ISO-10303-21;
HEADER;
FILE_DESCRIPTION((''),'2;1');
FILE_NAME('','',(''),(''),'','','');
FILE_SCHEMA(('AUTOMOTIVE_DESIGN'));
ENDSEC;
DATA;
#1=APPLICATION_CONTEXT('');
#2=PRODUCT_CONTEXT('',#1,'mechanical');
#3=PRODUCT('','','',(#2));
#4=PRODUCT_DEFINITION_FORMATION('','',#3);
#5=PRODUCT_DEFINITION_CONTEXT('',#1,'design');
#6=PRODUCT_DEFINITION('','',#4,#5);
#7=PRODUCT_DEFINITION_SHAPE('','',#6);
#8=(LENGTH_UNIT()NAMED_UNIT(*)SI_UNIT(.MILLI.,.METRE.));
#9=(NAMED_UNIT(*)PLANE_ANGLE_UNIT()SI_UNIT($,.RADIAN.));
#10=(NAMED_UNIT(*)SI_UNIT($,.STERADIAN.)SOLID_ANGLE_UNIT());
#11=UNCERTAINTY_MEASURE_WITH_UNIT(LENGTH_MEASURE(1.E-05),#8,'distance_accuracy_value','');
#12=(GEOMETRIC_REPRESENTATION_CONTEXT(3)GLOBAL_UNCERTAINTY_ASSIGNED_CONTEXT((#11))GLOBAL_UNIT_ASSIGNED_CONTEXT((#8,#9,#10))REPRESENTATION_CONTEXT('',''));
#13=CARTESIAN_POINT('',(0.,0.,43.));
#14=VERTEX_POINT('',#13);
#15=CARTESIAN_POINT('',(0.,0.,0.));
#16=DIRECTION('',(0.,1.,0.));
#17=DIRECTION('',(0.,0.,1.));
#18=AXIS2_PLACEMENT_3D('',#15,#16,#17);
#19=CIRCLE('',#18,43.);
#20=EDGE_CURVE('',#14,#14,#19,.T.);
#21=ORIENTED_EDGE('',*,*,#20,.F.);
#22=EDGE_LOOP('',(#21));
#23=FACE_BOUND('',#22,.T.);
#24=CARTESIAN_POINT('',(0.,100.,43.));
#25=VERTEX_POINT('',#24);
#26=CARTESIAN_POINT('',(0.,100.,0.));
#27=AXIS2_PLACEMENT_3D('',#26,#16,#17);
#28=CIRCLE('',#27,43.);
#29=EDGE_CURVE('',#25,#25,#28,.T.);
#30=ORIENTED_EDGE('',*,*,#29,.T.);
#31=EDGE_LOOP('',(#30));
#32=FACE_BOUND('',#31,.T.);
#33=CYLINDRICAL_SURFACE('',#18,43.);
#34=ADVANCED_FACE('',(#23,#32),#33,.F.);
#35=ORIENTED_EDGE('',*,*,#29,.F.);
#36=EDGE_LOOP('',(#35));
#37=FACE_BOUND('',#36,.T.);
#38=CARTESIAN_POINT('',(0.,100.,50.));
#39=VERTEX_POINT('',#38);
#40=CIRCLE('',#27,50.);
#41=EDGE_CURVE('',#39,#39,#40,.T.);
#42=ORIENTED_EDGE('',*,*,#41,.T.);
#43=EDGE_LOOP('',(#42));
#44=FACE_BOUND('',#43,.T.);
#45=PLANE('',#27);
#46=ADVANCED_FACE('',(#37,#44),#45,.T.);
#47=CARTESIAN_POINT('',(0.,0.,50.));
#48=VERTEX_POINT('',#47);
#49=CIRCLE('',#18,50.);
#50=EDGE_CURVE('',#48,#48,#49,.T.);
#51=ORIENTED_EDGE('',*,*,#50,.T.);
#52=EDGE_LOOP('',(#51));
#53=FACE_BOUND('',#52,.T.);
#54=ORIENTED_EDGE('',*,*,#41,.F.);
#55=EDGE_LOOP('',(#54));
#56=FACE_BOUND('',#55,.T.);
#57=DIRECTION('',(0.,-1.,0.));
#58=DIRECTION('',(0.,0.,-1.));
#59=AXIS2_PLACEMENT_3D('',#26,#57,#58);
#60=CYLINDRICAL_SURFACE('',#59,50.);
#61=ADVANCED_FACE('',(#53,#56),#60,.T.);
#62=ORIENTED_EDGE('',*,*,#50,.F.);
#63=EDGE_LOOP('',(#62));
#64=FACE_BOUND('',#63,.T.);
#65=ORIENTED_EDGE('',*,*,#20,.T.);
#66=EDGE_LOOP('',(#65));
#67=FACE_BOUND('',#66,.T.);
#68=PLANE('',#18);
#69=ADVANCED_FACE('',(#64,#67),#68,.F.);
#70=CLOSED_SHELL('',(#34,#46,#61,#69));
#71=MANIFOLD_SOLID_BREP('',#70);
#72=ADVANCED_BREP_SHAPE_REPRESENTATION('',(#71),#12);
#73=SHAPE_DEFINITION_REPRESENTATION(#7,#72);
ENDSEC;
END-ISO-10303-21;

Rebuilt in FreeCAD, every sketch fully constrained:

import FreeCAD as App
import Part
import Sketcher
from FreeCAD import Vector

doc = App.newDocument("Part")
body = doc.addObject("PartDesign::Body", "Body")

sketch1 = body.newObject("Sketcher::SketchObject", "Sketch")
sketch1.AttachmentSupport = (doc.getObject("XZ_Plane"), [""])
sketch1.MapMode = "FlatFace"
sketch1.addGeometry(Part.Circle(Vector(0, 0, 0), Vector(0, 0, 1), 50), False)
sketch1.addConstraint([
    Sketcher.Constraint("Coincident", 0, 3, -1, 1),
    Sketcher.Constraint("Diameter", 0, 100.0),
])
pad1 = body.newObject("PartDesign::Pad", "Pad")
pad1.Profile = sketch1
pad1.Length = 100
pad1.Reversed = True

sketch2 = body.newObject("Sketcher::SketchObject", "Sketch001")
sketch2.AttachmentSupport = (doc.getObject("XZ_Plane"), [""])
sketch2.MapMode = "FlatFace"
sketch2.AttachmentOffset = App.Placement(Vector(0, 0, -100), App.Rotation())
sketch2.addGeometry(Part.Circle(Vector(0, 0, 0), Vector(0, 0, 1), 43), False)
sketch2.addConstraint([
    Sketcher.Constraint("Coincident", 0, 3, -1, 1),
    Sketcher.Constraint("Diameter", 0, 86.0),
])
pocket1 = body.newObject("PartDesign::Pocket", "Pocket")
pocket1.Profile = sketch2
pocket1.Type = "ThroughAll"
pocket1.Reversed = True

doc.recompute()
